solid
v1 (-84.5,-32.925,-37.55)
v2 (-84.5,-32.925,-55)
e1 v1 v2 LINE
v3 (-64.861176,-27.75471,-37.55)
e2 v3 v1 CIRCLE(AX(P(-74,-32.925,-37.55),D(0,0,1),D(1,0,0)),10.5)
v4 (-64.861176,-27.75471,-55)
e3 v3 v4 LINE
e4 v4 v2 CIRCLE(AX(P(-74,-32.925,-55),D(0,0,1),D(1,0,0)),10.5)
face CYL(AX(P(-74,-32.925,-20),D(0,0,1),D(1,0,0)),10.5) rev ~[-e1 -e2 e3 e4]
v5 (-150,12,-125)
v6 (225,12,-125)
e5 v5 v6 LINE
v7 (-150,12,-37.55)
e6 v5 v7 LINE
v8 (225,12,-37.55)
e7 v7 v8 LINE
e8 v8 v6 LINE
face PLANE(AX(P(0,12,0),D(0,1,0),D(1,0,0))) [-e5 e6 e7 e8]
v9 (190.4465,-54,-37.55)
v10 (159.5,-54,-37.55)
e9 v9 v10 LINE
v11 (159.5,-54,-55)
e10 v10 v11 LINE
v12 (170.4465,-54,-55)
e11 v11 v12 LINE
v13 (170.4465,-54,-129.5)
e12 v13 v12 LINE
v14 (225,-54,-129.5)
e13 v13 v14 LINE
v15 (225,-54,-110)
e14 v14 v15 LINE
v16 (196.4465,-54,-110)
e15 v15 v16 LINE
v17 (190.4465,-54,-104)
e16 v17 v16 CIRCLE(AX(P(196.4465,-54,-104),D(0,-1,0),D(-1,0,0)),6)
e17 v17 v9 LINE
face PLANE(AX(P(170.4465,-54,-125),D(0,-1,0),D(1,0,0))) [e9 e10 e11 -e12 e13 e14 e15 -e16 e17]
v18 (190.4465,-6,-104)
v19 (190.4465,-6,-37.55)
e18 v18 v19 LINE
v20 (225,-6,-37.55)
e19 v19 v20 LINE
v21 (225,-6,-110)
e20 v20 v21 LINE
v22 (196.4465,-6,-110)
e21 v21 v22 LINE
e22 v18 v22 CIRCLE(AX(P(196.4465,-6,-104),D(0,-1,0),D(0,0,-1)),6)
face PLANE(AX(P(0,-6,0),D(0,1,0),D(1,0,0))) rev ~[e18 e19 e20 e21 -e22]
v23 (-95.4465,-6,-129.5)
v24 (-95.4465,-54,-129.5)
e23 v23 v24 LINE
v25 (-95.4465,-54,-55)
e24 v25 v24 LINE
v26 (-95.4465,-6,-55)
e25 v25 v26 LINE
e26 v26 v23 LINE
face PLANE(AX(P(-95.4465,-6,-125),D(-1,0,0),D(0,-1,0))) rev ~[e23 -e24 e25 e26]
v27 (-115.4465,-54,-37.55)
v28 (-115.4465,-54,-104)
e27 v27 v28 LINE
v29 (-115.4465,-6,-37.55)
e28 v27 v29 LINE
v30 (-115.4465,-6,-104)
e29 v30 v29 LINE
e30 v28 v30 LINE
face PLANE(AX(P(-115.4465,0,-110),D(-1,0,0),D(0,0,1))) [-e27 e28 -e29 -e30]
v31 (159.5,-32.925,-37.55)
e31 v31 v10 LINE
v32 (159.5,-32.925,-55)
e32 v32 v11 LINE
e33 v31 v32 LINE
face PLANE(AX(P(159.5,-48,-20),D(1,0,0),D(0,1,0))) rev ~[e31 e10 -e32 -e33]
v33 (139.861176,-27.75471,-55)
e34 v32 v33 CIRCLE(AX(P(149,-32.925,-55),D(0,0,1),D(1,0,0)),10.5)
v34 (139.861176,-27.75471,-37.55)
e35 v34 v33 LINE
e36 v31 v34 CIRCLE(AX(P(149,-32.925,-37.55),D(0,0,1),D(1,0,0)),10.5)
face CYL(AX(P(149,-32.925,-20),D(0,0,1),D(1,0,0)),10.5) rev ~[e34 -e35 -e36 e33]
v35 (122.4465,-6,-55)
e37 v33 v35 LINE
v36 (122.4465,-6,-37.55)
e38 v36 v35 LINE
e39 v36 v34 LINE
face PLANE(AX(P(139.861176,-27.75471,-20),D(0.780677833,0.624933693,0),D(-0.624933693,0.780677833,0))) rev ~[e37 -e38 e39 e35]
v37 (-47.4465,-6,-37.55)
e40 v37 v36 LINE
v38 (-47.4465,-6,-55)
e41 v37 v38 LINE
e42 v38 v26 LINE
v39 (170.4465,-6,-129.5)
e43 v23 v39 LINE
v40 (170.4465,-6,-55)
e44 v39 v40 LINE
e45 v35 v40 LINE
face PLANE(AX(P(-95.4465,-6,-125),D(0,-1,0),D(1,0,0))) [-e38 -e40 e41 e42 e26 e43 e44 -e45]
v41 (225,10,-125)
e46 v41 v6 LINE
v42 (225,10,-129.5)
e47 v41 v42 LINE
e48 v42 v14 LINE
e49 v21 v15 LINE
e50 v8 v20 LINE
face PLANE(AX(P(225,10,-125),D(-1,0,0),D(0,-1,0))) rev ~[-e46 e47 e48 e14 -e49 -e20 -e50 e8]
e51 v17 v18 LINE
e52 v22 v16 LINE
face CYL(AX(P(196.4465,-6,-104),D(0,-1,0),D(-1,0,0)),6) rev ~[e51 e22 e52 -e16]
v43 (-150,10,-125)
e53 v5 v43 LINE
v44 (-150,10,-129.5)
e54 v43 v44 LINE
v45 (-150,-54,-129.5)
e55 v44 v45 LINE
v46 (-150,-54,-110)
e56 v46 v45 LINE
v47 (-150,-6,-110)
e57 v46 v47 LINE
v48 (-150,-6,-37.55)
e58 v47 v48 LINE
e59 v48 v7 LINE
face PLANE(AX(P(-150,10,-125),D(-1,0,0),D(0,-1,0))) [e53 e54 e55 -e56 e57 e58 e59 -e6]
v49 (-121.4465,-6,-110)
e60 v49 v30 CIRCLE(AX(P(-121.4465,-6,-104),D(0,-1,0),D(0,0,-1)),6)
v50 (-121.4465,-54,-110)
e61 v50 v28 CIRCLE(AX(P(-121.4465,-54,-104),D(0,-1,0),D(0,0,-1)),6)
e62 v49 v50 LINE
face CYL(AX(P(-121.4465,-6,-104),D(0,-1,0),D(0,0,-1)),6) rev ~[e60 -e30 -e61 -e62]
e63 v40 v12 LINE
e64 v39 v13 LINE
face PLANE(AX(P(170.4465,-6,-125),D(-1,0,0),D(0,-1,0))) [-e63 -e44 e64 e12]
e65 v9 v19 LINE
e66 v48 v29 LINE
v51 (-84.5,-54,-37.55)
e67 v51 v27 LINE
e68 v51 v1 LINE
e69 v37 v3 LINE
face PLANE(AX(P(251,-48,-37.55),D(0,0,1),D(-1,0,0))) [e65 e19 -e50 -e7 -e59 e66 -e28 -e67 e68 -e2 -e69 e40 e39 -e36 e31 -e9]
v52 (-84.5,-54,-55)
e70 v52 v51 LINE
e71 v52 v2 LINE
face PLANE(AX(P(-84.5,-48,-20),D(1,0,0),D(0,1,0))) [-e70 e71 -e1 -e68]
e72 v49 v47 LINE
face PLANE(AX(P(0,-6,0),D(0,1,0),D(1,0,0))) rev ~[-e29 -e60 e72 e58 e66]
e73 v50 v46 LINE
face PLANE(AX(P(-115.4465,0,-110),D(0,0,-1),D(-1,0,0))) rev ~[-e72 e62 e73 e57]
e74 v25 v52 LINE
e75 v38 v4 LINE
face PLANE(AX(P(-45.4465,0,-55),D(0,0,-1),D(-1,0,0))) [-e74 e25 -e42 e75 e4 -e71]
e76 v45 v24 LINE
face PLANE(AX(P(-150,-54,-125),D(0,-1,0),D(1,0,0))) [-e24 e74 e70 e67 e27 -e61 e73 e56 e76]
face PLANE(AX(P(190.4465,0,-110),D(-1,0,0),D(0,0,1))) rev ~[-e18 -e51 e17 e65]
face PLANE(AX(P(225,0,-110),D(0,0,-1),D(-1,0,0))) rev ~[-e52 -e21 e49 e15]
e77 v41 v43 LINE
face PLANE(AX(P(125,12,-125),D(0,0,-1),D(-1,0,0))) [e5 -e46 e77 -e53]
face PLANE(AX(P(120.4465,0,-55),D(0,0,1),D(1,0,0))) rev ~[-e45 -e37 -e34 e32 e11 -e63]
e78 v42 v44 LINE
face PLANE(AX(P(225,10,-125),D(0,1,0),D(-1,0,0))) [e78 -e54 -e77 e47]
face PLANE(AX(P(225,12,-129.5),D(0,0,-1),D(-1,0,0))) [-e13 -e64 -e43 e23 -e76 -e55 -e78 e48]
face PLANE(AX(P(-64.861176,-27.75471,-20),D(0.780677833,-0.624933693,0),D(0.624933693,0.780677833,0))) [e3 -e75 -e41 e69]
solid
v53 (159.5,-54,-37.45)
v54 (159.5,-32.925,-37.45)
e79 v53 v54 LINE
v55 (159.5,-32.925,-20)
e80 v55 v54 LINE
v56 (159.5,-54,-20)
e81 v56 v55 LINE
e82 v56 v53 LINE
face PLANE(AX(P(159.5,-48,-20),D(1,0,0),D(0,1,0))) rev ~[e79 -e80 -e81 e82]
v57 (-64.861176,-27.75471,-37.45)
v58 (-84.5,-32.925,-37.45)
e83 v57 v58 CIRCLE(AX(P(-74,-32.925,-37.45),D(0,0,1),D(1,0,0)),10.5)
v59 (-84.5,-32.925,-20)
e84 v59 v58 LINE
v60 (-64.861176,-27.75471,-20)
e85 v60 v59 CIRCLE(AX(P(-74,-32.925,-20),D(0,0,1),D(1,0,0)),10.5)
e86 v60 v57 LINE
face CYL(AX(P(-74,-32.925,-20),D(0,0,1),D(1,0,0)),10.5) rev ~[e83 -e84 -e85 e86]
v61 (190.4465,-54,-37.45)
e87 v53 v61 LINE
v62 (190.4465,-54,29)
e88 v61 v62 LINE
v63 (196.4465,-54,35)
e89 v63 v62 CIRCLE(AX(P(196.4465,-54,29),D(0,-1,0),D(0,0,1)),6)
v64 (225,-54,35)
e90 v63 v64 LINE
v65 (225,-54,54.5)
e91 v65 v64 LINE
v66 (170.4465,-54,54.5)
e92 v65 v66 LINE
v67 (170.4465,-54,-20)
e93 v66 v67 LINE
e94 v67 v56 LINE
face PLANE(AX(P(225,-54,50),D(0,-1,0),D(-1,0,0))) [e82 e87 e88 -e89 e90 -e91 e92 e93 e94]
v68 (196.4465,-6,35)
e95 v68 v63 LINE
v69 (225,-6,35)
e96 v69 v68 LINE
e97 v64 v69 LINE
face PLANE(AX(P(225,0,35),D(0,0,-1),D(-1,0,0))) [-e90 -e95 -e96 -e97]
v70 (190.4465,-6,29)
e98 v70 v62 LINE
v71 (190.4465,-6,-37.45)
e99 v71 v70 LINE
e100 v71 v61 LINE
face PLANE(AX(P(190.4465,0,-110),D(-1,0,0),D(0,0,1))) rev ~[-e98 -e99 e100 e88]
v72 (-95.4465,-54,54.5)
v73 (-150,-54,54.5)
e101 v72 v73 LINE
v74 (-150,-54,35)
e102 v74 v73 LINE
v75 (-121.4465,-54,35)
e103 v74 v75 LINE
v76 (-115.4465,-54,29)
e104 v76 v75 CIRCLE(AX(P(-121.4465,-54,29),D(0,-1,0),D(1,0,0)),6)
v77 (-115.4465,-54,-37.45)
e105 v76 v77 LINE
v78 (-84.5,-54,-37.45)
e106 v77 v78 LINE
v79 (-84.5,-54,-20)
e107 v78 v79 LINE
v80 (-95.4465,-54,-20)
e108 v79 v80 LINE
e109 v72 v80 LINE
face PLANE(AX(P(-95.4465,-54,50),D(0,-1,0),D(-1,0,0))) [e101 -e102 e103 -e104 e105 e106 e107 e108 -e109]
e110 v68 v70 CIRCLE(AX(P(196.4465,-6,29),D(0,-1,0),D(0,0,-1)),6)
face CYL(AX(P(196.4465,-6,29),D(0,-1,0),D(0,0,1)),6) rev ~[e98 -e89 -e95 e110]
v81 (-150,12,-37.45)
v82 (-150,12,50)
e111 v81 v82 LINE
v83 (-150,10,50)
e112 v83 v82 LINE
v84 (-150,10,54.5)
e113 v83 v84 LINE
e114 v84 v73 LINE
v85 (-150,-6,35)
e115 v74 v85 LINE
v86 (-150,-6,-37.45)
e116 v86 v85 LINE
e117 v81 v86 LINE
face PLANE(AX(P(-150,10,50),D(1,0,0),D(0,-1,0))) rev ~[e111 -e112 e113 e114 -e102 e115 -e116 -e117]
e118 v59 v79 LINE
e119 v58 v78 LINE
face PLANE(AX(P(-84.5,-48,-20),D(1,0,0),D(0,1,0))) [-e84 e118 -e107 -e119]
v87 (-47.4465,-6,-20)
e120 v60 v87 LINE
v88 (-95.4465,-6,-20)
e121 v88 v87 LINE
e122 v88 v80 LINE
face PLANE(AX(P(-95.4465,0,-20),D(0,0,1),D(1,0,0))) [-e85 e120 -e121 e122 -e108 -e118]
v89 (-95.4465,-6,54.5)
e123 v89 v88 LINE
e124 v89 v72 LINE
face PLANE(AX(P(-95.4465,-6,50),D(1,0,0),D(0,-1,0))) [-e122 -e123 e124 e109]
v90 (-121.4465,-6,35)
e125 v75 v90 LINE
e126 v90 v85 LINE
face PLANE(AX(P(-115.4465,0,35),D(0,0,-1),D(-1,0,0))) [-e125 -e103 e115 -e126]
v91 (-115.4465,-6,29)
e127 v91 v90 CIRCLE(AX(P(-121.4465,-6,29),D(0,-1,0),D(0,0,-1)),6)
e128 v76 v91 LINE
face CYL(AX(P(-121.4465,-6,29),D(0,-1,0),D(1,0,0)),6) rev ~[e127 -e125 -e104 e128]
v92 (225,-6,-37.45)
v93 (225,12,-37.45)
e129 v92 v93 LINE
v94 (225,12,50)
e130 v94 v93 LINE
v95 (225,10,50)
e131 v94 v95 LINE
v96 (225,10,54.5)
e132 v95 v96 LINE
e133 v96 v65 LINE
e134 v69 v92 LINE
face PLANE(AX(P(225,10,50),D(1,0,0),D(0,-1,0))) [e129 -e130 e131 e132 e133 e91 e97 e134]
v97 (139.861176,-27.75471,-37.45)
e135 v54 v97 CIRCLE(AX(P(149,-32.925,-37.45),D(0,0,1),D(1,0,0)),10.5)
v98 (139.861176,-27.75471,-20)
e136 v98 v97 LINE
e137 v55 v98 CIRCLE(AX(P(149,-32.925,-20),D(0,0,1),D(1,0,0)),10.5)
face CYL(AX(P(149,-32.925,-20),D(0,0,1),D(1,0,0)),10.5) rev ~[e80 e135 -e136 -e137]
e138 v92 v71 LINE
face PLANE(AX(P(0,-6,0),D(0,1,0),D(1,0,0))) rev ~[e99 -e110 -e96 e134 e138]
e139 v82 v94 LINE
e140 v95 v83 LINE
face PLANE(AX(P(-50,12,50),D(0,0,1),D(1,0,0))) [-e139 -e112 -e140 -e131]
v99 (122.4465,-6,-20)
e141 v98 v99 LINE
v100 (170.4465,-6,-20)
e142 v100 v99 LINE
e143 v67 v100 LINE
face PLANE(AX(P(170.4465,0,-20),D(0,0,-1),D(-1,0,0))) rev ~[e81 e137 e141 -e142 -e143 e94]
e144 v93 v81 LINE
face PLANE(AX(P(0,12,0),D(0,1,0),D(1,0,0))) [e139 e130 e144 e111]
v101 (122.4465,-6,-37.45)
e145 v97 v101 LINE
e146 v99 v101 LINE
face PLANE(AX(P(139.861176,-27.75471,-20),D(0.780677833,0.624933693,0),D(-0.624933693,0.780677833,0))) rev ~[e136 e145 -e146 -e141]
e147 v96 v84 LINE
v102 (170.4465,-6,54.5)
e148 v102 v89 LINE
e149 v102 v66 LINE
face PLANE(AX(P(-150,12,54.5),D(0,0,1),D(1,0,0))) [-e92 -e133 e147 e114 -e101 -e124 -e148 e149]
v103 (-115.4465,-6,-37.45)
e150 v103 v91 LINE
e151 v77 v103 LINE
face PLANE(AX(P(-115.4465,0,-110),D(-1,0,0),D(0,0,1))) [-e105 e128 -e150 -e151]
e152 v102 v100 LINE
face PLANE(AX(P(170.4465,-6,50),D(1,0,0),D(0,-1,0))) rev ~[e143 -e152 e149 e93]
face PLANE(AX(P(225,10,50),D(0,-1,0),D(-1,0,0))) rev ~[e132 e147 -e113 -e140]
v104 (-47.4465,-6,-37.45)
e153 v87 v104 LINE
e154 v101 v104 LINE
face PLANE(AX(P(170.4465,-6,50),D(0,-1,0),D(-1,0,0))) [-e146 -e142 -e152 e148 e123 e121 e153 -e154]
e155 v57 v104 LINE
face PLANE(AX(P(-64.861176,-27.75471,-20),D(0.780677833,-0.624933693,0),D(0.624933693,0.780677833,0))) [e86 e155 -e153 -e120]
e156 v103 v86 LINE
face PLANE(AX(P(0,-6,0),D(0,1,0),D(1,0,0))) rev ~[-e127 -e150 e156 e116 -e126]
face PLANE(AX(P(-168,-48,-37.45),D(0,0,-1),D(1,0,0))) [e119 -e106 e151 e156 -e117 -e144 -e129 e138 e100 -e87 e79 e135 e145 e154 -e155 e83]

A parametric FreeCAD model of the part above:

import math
import FreeCAD as App
import Part
import Sketcher
from FreeCAD import Vector


def edges_at(feature, points):
    """Names of the edges that pass closest to the given points."""
    edges = feature.Shape.Edges
    near = lambda p: min(range(len(edges)), key=lambda i: edges[i].distToShape(Part.Vertex(*p))[0])
    return sorted({f"Edge{near(p) + 1}" for p in points})


def add_polygon(sketch, points):
    """Adds a closed chain of lines whose ends are joined by coincident constraints."""
    first, n = sketch.GeometryCount, len(points)
    for a, b in zip(points, points[1:] + points[:1]):
        sketch.addGeometry(Part.LineSegment(App.Vector(*a, 0), App.Vector(*b, 0)), False)
    for i in range(n):
        sketch.addConstraint(Sketcher.Constraint("Coincident", first + i, 2, first + (i + 1) % n, 1))

doc = App.newDocument("Part")
body = doc.addObject("PartDesign::Body", "Body")
body.AllowCompound = True

# Sketch on XZ plane
sketch1 = body.newObject("Sketcher::SketchObject", "Sketch")
sketch1.AttachmentSupport = (doc.getObject("XZ_Plane"), [""])
sketch1.MapMode = "FlatFace"
add_polygon(sketch1, [(-50, -125), (-50, 50), (125, 50), (125, -125)])  # lines 0-3
sketch1.addConstraint([
    Sketcher.Constraint("Vertical", 0),
    Sketcher.Constraint("Horizontal", 1),
    Sketcher.Constraint("Vertical", 2),
    Sketcher.Constraint("Horizontal", 3),
    Sketcher.Constraint("Equal", 3, 0),
    Sketcher.Constraint("DistanceX", 1, 1, 1, 2, 175.0),
    Sketcher.Constraint("DistanceX", 0, 2, -1, 1, 50.0),
    Sketcher.Constraint("DistanceY", -1, 1, 0, 2, 50.0),
])
pad1 = body.newObject("PartDesign::Pad", "Pad")
pad1.Profile = sketch1
pad1.Length = 12
pad1.Reversed = True

# Sketch on XZ plane
sketch2 = body.newObject("Sketcher::SketchObject", "Sketch001")
sketch2.AttachmentSupport = (doc.getObject("XZ_Plane"), [""])
sketch2.MapMode = "FlatFace"
sketch2.AttachmentOffset = App.Placement(Vector(0, 0, -12), App.Rotation())
add_polygon(sketch2, [(-150, -125), (-150, 50), (225, 50), (225, -125)])  # lines 0-3
sketch2.addConstraint([
    Sketcher.Constraint("Vertical", 0),
    Sketcher.Constraint("Horizontal", 1),
    Sketcher.Constraint("Vertical", 2),
    Sketcher.Constraint("Horizontal", 3),
    Sketcher.Constraint("DistanceX", 1, 1, 1, 2, 375.0),
    Sketcher.Constraint("DistanceY", 0, 1, 0, 2, 175.0),
    Sketcher.Constraint("DistanceX", 0, 2, -1, 1, 150.0),
    Sketcher.Constraint("DistanceY", -1, 1, 0, 2, 50.0),
])
pad2 = body.newObject("PartDesign::Pad", "Pad001")
pad2.Profile = sketch2
pad2.Length = 18

# Sketch on XZ plane
sketch3 = body.newObject("Sketcher::SketchObject", "Sketch002")
sketch3.AttachmentSupport = (doc.getObject("XZ_Plane"), [""])
sketch3.MapMode = "FlatFace"
add_polygon(sketch3, [(225, 35), (225, 50), (170, 50), (170, -20), (120, -20), (120, -55), (170, -55), (170, -125), (225, -125), (225, -110), (190, -110), (190, 35)])  # lines 0-11
add_polygon(sketch3, [(-95, -20), (-95, 50), (-150, 50), (-150, 35), (-115, 35), (-115, -110), (-150, -110), (-150, -125), (-95, -125), (-95, -55), (-45, -55), (-45, -20)])  # lines 12-23
sketch3.addConstraint([
    Sketcher.Constraint("Vertical", 0),
    Sketcher.Constraint("Horizontal", 1),
    Sketcher.Constraint("Vertical", 2),
    Sketcher.Constraint("Horizontal", 3),
    Sketcher.Constraint("Vertical", 4),
    Sketcher.Constraint("Horizontal", 5),
    Sketcher.Constraint("Vertical", 6),
    Sketcher.Constraint("Horizontal", 7),
    Sketcher.Constraint("Vertical", 8),
    Sketcher.Constraint("Horizontal", 9),
    Sketcher.Constraint("Vertical", 10),
    Sketcher.Constraint("Horizontal", 11),
    Sketcher.Constraint("Vertical", 12),
    Sketcher.Constraint("Horizontal", 13),
    Sketcher.Constraint("Vertical", 14),
    Sketcher.Constraint("Horizontal", 15),
    Sketcher.Constraint("Vertical", 16),
    Sketcher.Constraint("Horizontal", 17),
    Sketcher.Constraint("Vertical", 18),
    Sketcher.Constraint("Horizontal", 19),
    Sketcher.Constraint("Vertical", 20),
    Sketcher.Constraint("Horizontal", 21),
    Sketcher.Constraint("Vertical", 22),
    Sketcher.Constraint("Horizontal", 23),
    Sketcher.Constraint("Horizontal", 1, 2, 12, 2),
    Sketcher.Constraint("Horizontal", 11, 2, 14, 2),
    Sketcher.Constraint("Horizontal", 9, 2, 16, 2),
    Sketcher.Constraint("Horizontal", 7, 2, 18, 2),
    Sketcher.Constraint("Horizontal", 5, 2, 20, 2),
    Sketcher.Constraint("Horizontal", 3, 2, 22, 2),
    Sketcher.Constraint("Vertical", 2, 2, 5, 2),
    Sketcher.Constraint("Vertical", 0, 2, 7, 2),
    Sketcher.Constraint("Vertical", 14, 2, 17, 2),
    Sketcher.Constraint("Vertical", 12, 2, 19, 2),
    Sketcher.Constraint("Equal", 7, 13),
    Sketcher.Constraint("Equal", 11, 15),
    Sketcher.Constraint("Equal", 5, 21),
    Sketcher.Constraint("Equal", 2, 6),
    Sketcher.Constraint("Equal", 0, 8),
    Sketcher.Constraint("DistanceX", 3, 2, 3, 1, 50.0),
    Sketcher.Constraint("DistanceY", 0, 1, 0, 2, 15.0),
    Sketcher.Constraint("DistanceY", 2, 2, 2, 1, 70.0),
    Sketcher.Constraint("DistanceY", -1, 1, 0, 2, 50.0),
    Sketcher.Constraint("DistanceX", 6, 2, 9, 2, 20.0),
    Sketcher.Constraint("DistanceY", 4, 2, 4, 1, 35.0),
    Sketcher.Constraint("DistanceX", 9, 2, 9, 1, 34.5535),
    Sketcher.Constraint("DistanceX", -1, 1, 0, 2, 225.0),
    Sketcher.Constraint("DistanceX", 13, 2, -1, 1, 150.0),
])
pad3 = body.newObject("PartDesign::Pad", "Pad002")
pad3.Profile = sketch3
pad3.Length = 48
doc.recompute()

fillet = body.newObject("PartDesign::Fillet", "Fillet")
fillet.Base = (pad3, edges_at(pad3, [
    (-115.447, -27, -110),
    (-115.447, -27, 35),
    (190.446, -27, 35),
    (190.446, -27, -110),
]))
fillet.Radius = 6

# Sketch on XY plane
sketch4 = body.newObject("Sketcher::SketchObject", "Sketch003")
sketch4.AttachmentSupport = (doc.getObject("XY_Plane"), [""])
sketch4.MapMode = "FlatFace"
sketch4.AttachmentOffset = App.Placement(Vector(0, 0, -20), App.Rotation())
sketch4.addGeometry([
    Part.ArcOfCircle(Part.Circle(Vector(149, -32.9, 0), Vector(0, 0, 1), 10.5), math.radians(0), math.radians(151)),  # 0
    Part.LineSegment(Vector(139.9, -27.8, 0), Vector(122.4, -6, 0)),  # 1
    Part.LineSegment(Vector(122.4, -6, 0), Vector(120.4, -6, 0)),  # 2
    Part.LineSegment(Vector(120.4, -6, 0), Vector(120.4, -48, 0)),  # 3
    Part.LineSegment(Vector(120.4, -48, 0), Vector(159.5, -48, 0)),  # 4
    Part.LineSegment(Vector(159.5, -48, 0), Vector(159.5, -32.9, 0)),  # 5
    Part.LineSegment(Vector(-45.4, -48, 0), Vector(-45.4, -6, 0)),  # 6
    Part.LineSegment(Vector(-45.4, -6, 0), Vector(-47.4, -6, 0)),  # 7
    Part.LineSegment(Vector(-47.4, -6, 0), Vector(-64.9, -27.8, 0)),  # 8
    Part.ArcOfCircle(Part.Circle(Vector(-74, -32.9, 0), Vector(0, 0, 1), 10.5), math.radians(29), math.radians(180)),  # 9
    Part.LineSegment(Vector(-84.5, -32.9, 0), Vector(-84.5, -48, 0)),  # 10
    Part.LineSegment(Vector(-84.5, -48, 0), Vector(-45.4, -48, 0)),  # 11
], False)
sketch4.addConstraint([
    Sketcher.Constraint("Coincident", 0, 2, 1, 1),
    Sketcher.Constraint("Coincident", 1, 2, 2, 1),
    Sketcher.Constraint("Coincident", 2, 2, 3, 1),
    Sketcher.Constraint("Coincident", 3, 2, 4, 1),
    Sketcher.Constraint("Coincident", 4, 2, 5, 1),
    Sketcher.Constraint("Tangent", 5, 2, 0, 1),
    Sketcher.Constraint("Coincident", 6, 2, 7, 1),
    Sketcher.Constraint("Coincident", 7, 2, 8, 1),
    Sketcher.Constraint("Coincident", 8, 2, 9, 1),
    Sketcher.Constraint("Tangent", 9, 2, 10, 1),
    Sketcher.Constraint("Coincident", 10, 2, 11, 1),
    Sketcher.Constraint("Coincident", 11, 2, 6, 1),
    Sketcher.Constraint("Horizontal", 2),
    Sketcher.Constraint("Vertical", 3),
    Sketcher.Constraint("Horizontal", 4),
    Sketcher.Constraint("Vertical", 5),
    Sketcher.Constraint("Vertical", 6),
    Sketcher.Constraint("Horizontal", 7),
    Sketcher.Constraint("Vertical", 10),
    Sketcher.Constraint("Horizontal", 11),
    Sketcher.Constraint("Equal", 0, 9),
    Sketcher.Constraint("Horizontal", 0, 3, 9, 3),
    Sketcher.Constraint("Horizontal", 2, 2, 6, 2),
    Sketcher.Constraint("Horizontal", 0, 2, 8, 2),
    Sketcher.Constraint("Horizontal", 4, 2, 10, 2),
    Sketcher.Constraint("Equal", 2, 7),
    Sketcher.Constraint("Equal", 4, 11),
    Sketcher.Constraint("Radius", 0, 10.5),
    Sketcher.Constraint("DistanceX", 2, 2, 2, 1, 2.0),
    Sketcher.Constraint("DistanceX", 9, 3, 0, 3, 223.0),
    Sketcher.Constraint("DistanceY", 3, 2, 3, 1, 42.0),
    Sketcher.Constraint("DistanceX", -1, 1, 0, 3, 149.0),
    Sketcher.Constraint("DistanceY", 1, 2, -1, 1, 6.0),
    Sketcher.Constraint("DistanceY", 0, 3, 1, 2, 26.925),
    Sketcher.Constraint("DistanceX", 4, 1, 4, 2, 39.0535),
    Sketcher.Constraint("Distance", 1, 27.8664),
])
pocket1 = body.newObject("PartDesign::Pocket", "Pocket")
pocket1.Profile = sketch4
pocket1.Length = 54

# Sketch on XZ plane
sketch5 = body.newObject("Sketcher::SketchObject", "Sketch004")
sketch5.AttachmentSupport = (doc.getObject("XZ_Plane"), [""])
sketch5.MapMode = "FlatFace"
sketch5.AttachmentOffset = App.Placement(Vector(0, 0, 48), App.Rotation())
add_polygon(sketch5, [(251, -37.45), (-168, -37.45), (-168, -37.55), (251, -37.55)])  # lines 0-3
sketch5.addConstraint([
    Sketcher.Constraint("Horizontal", 0),
    Sketcher.Constraint("Vertical", 1),
    Sketcher.Constraint("Horizontal", 2),
    Sketcher.Constraint("Vertical", 3),
    Sketcher.Constraint("DistanceX", 0, 2, 0, 1, 419.0),
    Sketcher.Constraint("DistanceY", 1, 2, 1, 1, 0.1),
    Sketcher.Constraint("DistanceX", 0, 2, -1, 1, 168.0),
    Sketcher.Constraint("DistanceY", 0, 2, -1, 1, 37.45),
])
pocket2 = body.newObject("PartDesign::Pocket", "Pocket001")
pocket2.Profile = sketch5
pocket2.Length = 98

# Sketch on XZ plane
sketch6 = body.newObject("Sketcher::SketchObject", "Sketch005")
sketch6.AttachmentSupport = (doc.getObject("XZ_Plane"), [""])
sketch6.MapMode = "FlatFace"
sketch6.AttachmentOffset = App.Placement(Vector(0, 0, 48), App.Rotation())
sketch6.addGeometry([
    Part.LineSegment(Vector(-115, 29, 0), Vector(-115, -37, 0)),  # 0
    Part.LineSegment(Vector(-115, -37, 0), Vector(-84, -37, 0)),  # 1
    Part.LineSegment(Vector(-84, -37, 0), Vector(-84, -20, 0)),  # 2
    Part.LineSegment(Vector(-84, -20, 0), Vector(-95, -20, 0)),  # 3
    Part.LineSegment(Vector(-95, -20, 0), Vector(-95, 50, 0)),  # 4
    Part.LineSegment(Vector(-95, 50, 0), Vector(-150, 50, 0)),  # 5
    Part.LineSegment(Vector(-150, 50, 0), Vector(-150, 35, 0)),  # 6
    Part.LineSegment(Vector(-150, 35, 0), Vector(-121, 35, 0)),  # 7
    Part.ArcOfCircle(Part.Circle(Vector(-121, 29, 0), Vector(0, 0, 1), 6), math.radians(0), math.radians(90)),  # 8
    Part.LineSegment(Vector(-84, -55, 0), Vector(-84, -38, 0)),  # 9
    Part.LineSegment(Vector(-84, -38, 0), Vector(-115, -38, 0)),  # 10
    Part.LineSegment(Vector(-115, -38, 0), Vector(-115, -104, 0)),  # 11
    Part.ArcOfCircle(Part.Circle(Vector(-121, -104, 0), Vector(0, 0, 1), 6), math.radians(-90), math.radians(0)),  # 12
    Part.LineSegment(Vector(-121, -110, 0), Vector(-150, -110, 0)),  # 13
    Part.LineSegment(Vector(-150, -110, 0), Vector(-150, -125, 0)),  # 14
    Part.LineSegment(Vector(-150, -125, 0), Vector(-95, -125, 0)),  # 15
    Part.LineSegment(Vector(-95, -125, 0), Vector(-95, -55, 0)),  # 16
    Part.LineSegment(Vector(-95, -55, 0), Vector(-84, -55, 0)),  # 17
    Part.LineSegment(Vector(160, -20, 0), Vector(160, -37, 0)),  # 18
    Part.LineSegment(Vector(160, -37, 0), Vector(190, -37, 0)),  # 19
    Part.LineSegment(Vector(190, -37, 0), Vector(190, 29, 0)),  # 20
    Part.ArcOfCircle(Part.Circle(Vector(196, 29, 0), Vector(0, 0, 1), 6), math.radians(90), math.radians(180)),  # 21
    Part.LineSegment(Vector(196, 35, 0), Vector(225, 35, 0)),  # 22
    Part.LineSegment(Vector(225, 35, 0), Vector(225, 50, 0)),  # 23
    Part.LineSegment(Vector(225, 50, 0), Vector(170, 50, 0)),  # 24
    Part.LineSegment(Vector(170, 50, 0), Vector(170, -20, 0)),  # 25
    Part.LineSegment(Vector(170, -20, 0), Vector(160, -20, 0)),  # 26
    Part.LineSegment(Vector(190, -104, 0), Vector(190, -38, 0)),  # 27
    Part.LineSegment(Vector(190, -38, 0), Vector(160, -38, 0)),  # 28
    Part.LineSegment(Vector(160, -38, 0), Vector(160, -55, 0)),  # 29
    Part.LineSegment(Vector(160, -55, 0), Vector(170, -55, 0)),  # 30
    Part.LineSegment(Vector(170, -55, 0), Vector(170, -125, 0)),  # 31
    Part.LineSegment(Vector(170, -125, 0), Vector(225, -125, 0)),  # 32
    Part.LineSegment(Vector(225, -125, 0), Vector(225, -110, 0)),  # 33
    Part.LineSegment(Vector(225, -110, 0), Vector(196, -110, 0)),  # 34
    Part.ArcOfCircle(Part.Circle(Vector(196, -104, 0), Vector(0, 0, 1), 6), math.radians(180), math.radians(270)),  # 35
], False)
sketch6.addConstraint([
    Sketcher.Constraint("Coincident", 0, 2, 1, 1),
    Sketcher.Constraint("Coincident", 1, 2, 2, 1),
    Sketcher.Constraint("Coincident", 2, 2, 3, 1),
    Sketcher.Constraint("Coincident", 3, 2, 4, 1),
    Sketcher.Constraint("Coincident", 4, 2, 5, 1),
    Sketcher.Constraint("Coincident", 5, 2, 6, 1),
    Sketcher.Constraint("Coincident", 6, 2, 7, 1),
    Sketcher.Constraint("Tangent", 7, 2, 8, 2),
    Sketcher.Constraint("Tangent", 8, 1, 0, 1),
    Sketcher.Constraint("Coincident", 9, 2, 10, 1),
    Sketcher.Constraint("Coincident", 10, 2, 11, 1),
    Sketcher.Constraint("Tangent", 11, 2, 12, 2),
    Sketcher.Constraint("Tangent", 12, 1, 13, 1),
    Sketcher.Constraint("Coincident", 13, 2, 14, 1),
    Sketcher.Constraint("Coincident", 14, 2, 15, 1),
    Sketcher.Constraint("Coincident", 15, 2, 16, 1),
    Sketcher.Constraint("Coincident", 16, 2, 17, 1),
    Sketcher.Constraint("Coincident", 17, 2, 9, 1),
    Sketcher.Constraint("Coincident", 18, 2, 19, 1),
    Sketcher.Constraint("Coincident", 19, 2, 20, 1),
    Sketcher.Constraint("Tangent", 20, 2, 21, 2),
    Sketcher.Constraint("Tangent", 21, 1, 22, 1),
    Sketcher.Constraint("Coincident", 22, 2, 23, 1),
    Sketcher.Constraint("Coincident", 23, 2, 24, 1),
    Sketcher.Constraint("Coincident", 24, 2, 25, 1),
    Sketcher.Constraint("Coincident", 25, 2, 26, 1),
    Sketcher.Constraint("Coincident", 26, 2, 18, 1),
    Sketcher.Constraint("Coincident", 27, 2, 28, 1),
    Sketcher.Constraint("Coincident", 28, 2, 29, 1),
    Sketcher.Constraint("Coincident", 29, 2, 30, 1),
    Sketcher.Constraint("Coincident", 30, 2, 31, 1),
    Sketcher.Constraint("Coincident", 31, 2, 32, 1),
    Sketcher.Constraint("Coincident", 32, 2, 33, 1),
    Sketcher.Constraint("Coincident", 33, 2, 34, 1),
    Sketcher.Constraint("Tangent", 34, 2, 35, 2),
    Sketcher.Constraint("Tangent", 35, 1, 27, 1),
    Sketcher.Constraint("Vertical", 0),
    Sketcher.Constraint("Horizontal", 1),
    Sketcher.Constraint("Vertical", 2),
    Sketcher.Constraint("Horizontal", 3),
    Sketcher.Constraint("Vertical", 4),
    Sketcher.Constraint("Horizontal", 5),
    Sketcher.Constraint("Vertical", 6),
    Sketcher.Constraint("Horizontal", 7),
    Sketcher.Constraint("Vertical", 9),
    Sketcher.Constraint("Horizontal", 10),
    Sketcher.Constraint("Vertical", 11),
    Sketcher.Constraint("Horizontal", 13),
    Sketcher.Constraint("Vertical", 14),
    Sketcher.Constraint("Horizontal", 15),
    Sketcher.Constraint("Vertical", 16),
    Sketcher.Constraint("Horizontal", 17),
    Sketcher.Constraint("Vertical", 18),
    Sketcher.Constraint("Horizontal", 19),
    Sketcher.Constraint("Vertical", 20),
    Sketcher.Constraint("Horizontal", 22),
    Sketcher.Constraint("Vertical", 23),
    Sketcher.Constraint("Horizontal", 24),
    Sketcher.Constraint("Vertical", 25),
    Sketcher.Constraint("Horizontal", 26),
    Sketcher.Constraint("Vertical", 27),
    Sketcher.Constraint("Horizontal", 28),
    Sketcher.Constraint("Vertical", 29),
    Sketcher.Constraint("Horizontal", 30),
    Sketcher.Constraint("Vertical", 31),
    Sketcher.Constraint("Horizontal", 32),
    Sketcher.Constraint("Vertical", 33),
    Sketcher.Constraint("Horizontal", 34),
    Sketcher.Constraint("Equal", 8, 12),
    Sketcher.Constraint("Equal", 12, 21),
    Sketcher.Constraint("Equal", 21, 35),
    Sketcher.Constraint("Horizontal", 8, 3, 21, 3),
    Sketcher.Constraint("Horizontal", 12, 3, 35, 3),
    Sketcher.Constraint("Horizontal", 1, 2, 18, 2),
    Sketcher.Constraint("Horizontal", 5, 2, 23, 2),
    Sketcher.Constraint("Horizontal", 3, 2, 25, 2),
    Sketcher.Constraint("Horizontal", 10, 2, 27, 2),
    Sketcher.Constraint("Horizontal", 17, 2, 29, 2),
    Sketcher.Constraint("Horizontal", 15, 2, 31, 2),
    Sketcher.Constraint("Vertical", 8, 3, 12, 3),
    Sketcher.Constraint("Vertical", 21, 3, 35, 3),
    Sketcher.Constraint("Vertical", 2, 2, 9, 2),
    Sketcher.Constraint("Vertical", 6, 2, 13, 2),
    Sketcher.Constraint("Vertical", 4, 2, 15, 2),
    Sketcher.Constraint("Vertical", 26, 2, 28, 2),
    Sketcher.Constraint("Vertical", 25, 2, 30, 2),
    Sketcher.Constraint("Vertical", 23, 2, 32, 2),
    Sketcher.Constraint("Equal", 10, 19),
    Sketcher.Constraint("Equal", 13, 22),
    Sketcher.Constraint("Equal", 15, 24),
    Sketcher.Constraint("Equal", 2, 9),
    Sketcher.Constraint("Equal", 0, 11),
    Sketcher.Constraint("Equal", 6, 14),
    Sketcher.Constraint("Radius", 8, 6.0),
    Sketcher.Constraint("DistanceY", 4, 1, 4, 2, 70.0),
    Sketcher.Constraint("DistanceY", 6, 2, 6, 1, 15.0),
    Sketcher.Constraint("DistanceY", -1, 1, 8, 3, 29.0),
    Sketcher.Constraint("DistanceY", 12, 3, -1, 1, 104.0),
    Sketcher.Constraint("DistanceX", 5, 2, -1, 1, 150.0),
    Sketcher.Constraint("DistanceX", -1, 1, 22, 2, 225.0),
    Sketcher.Constraint("DistanceX", 0, 2, 3, 2, 20.0),
    Sketcher.Constraint("DistanceX", 1, 2, 18, 2, 244.0),
    Sketcher.Constraint("DistanceY", 0, 2, 0, 1, 66.45),
    Sketcher.Constraint("DistanceX", 1, 1, 1, 2, 30.9465),
])
pad4 = body.newObject("PartDesign::Pad", "Pad003")
pad4.Profile = sketch6
pad4.Length = 6

# Sketch on XY plane
sketch7 = body.newObject("Sketcher::SketchObject", "Sketch006")
sketch7.AttachmentSupport = (doc.getObject("XY_Plane"), [""])
sketch7.MapMode = "FlatFace"
sketch7.AttachmentOffset = App.Placement(Vector(0, 0, 50), App.Rotation())
add_polygon(sketch7, [(225, -54), (225, 10), (-150, 10), (-150, -54), (-95, -54), (-95, -6), (170, -6), (170, -54)])  # lines 0-7
sketch7.addConstraint([
    Sketcher.Constraint("Vertical", 0),
    Sketcher.Constraint("Horizontal", 1),
    Sketcher.Constraint("Vertical", 2),
    Sketcher.Constraint("Horizontal", 3),
    Sketcher.Constraint("Vertical", 4),
    Sketcher.Constraint("Horizontal", 5),
    Sketcher.Constraint("Vertical", 6),
    Sketcher.Constraint("Horizontal", 7),
    Sketcher.Constraint("Horizontal", 3, 2, 6, 2),
    Sketcher.Constraint("Equal", 3, 7),
    Sketcher.Constraint("DistanceX", 1, 2, 1, 1, 375.0),
    Sketcher.Constraint("DistanceY", 0, 1, 0, 2, 64.0),
    Sketcher.Constraint("DistanceY", 4, 1, 4, 2, 48.0),
    Sketcher.Constraint("DistanceX", -1, 1, 0, 2, 225.0),
    Sketcher.Constraint("DistanceY", -1, 1, 0, 2, 10.0),
    Sketcher.Constraint("DistanceX", 5, 1, 5, 2, 265.893),
])
pad5 = body.newObject("PartDesign::Pad", "Pad004")
pad5.Profile = sketch7
pad5.Length = 4.5

# Sketch on XY plane
sketch8 = body.newObject("Sketcher::SketchObject", "Sketch007")
sketch8.AttachmentSupport = (doc.getObject("XY_Plane"), [""])
sketch8.MapMode = "FlatFace"
sketch8.AttachmentOffset = App.Placement(Vector(0, 0, -125), App.Rotation())
add_polygon(sketch8, [(170, -6), (-95, -6), (-95, -54), (-150, -54), (-150, 10), (225, 10), (225, -54), (170, -54)])  # lines 0-7
sketch8.addConstraint([
    Sketcher.Constraint("Horizontal", 0),
    Sketcher.Constraint("Vertical", 1),
    Sketcher.Constraint("Horizontal", 2),
    Sketcher.Constraint("Vertical", 3),
    Sketcher.Constraint("Horizontal", 4),
    Sketcher.Constraint("Vertical", 5),
    Sketcher.Constraint("Horizontal", 6),
    Sketcher.Constraint("Vertical", 7),
    Sketcher.Constraint("Horizontal", 2, 2, 5, 2),
    Sketcher.Constraint("Equal", 2, 6),
    Sketcher.Constraint("DistanceX", 4, 1, 4, 2, 375.0),
    Sketcher.Constraint("DistanceY", 1, 2, 1, 1, 48.0),
    Sketcher.Constraint("DistanceY", 3, 1, 3, 2, 64.0),
    Sketcher.Constraint("DistanceY", 0, 2, -1, 1, 6.0),
    Sketcher.Constraint("DistanceX", 2, 2, -1, 1, 150.0),
    Sketcher.Constraint("DistanceX", 0, 2, 0, 1, 265.893),
])
pad6 = body.newObject("PartDesign::Pad", "Pad005")
pad6.Profile = sketch8
pad6.Length = 4.5
pad6.Reversed = True

doc.recompute()
